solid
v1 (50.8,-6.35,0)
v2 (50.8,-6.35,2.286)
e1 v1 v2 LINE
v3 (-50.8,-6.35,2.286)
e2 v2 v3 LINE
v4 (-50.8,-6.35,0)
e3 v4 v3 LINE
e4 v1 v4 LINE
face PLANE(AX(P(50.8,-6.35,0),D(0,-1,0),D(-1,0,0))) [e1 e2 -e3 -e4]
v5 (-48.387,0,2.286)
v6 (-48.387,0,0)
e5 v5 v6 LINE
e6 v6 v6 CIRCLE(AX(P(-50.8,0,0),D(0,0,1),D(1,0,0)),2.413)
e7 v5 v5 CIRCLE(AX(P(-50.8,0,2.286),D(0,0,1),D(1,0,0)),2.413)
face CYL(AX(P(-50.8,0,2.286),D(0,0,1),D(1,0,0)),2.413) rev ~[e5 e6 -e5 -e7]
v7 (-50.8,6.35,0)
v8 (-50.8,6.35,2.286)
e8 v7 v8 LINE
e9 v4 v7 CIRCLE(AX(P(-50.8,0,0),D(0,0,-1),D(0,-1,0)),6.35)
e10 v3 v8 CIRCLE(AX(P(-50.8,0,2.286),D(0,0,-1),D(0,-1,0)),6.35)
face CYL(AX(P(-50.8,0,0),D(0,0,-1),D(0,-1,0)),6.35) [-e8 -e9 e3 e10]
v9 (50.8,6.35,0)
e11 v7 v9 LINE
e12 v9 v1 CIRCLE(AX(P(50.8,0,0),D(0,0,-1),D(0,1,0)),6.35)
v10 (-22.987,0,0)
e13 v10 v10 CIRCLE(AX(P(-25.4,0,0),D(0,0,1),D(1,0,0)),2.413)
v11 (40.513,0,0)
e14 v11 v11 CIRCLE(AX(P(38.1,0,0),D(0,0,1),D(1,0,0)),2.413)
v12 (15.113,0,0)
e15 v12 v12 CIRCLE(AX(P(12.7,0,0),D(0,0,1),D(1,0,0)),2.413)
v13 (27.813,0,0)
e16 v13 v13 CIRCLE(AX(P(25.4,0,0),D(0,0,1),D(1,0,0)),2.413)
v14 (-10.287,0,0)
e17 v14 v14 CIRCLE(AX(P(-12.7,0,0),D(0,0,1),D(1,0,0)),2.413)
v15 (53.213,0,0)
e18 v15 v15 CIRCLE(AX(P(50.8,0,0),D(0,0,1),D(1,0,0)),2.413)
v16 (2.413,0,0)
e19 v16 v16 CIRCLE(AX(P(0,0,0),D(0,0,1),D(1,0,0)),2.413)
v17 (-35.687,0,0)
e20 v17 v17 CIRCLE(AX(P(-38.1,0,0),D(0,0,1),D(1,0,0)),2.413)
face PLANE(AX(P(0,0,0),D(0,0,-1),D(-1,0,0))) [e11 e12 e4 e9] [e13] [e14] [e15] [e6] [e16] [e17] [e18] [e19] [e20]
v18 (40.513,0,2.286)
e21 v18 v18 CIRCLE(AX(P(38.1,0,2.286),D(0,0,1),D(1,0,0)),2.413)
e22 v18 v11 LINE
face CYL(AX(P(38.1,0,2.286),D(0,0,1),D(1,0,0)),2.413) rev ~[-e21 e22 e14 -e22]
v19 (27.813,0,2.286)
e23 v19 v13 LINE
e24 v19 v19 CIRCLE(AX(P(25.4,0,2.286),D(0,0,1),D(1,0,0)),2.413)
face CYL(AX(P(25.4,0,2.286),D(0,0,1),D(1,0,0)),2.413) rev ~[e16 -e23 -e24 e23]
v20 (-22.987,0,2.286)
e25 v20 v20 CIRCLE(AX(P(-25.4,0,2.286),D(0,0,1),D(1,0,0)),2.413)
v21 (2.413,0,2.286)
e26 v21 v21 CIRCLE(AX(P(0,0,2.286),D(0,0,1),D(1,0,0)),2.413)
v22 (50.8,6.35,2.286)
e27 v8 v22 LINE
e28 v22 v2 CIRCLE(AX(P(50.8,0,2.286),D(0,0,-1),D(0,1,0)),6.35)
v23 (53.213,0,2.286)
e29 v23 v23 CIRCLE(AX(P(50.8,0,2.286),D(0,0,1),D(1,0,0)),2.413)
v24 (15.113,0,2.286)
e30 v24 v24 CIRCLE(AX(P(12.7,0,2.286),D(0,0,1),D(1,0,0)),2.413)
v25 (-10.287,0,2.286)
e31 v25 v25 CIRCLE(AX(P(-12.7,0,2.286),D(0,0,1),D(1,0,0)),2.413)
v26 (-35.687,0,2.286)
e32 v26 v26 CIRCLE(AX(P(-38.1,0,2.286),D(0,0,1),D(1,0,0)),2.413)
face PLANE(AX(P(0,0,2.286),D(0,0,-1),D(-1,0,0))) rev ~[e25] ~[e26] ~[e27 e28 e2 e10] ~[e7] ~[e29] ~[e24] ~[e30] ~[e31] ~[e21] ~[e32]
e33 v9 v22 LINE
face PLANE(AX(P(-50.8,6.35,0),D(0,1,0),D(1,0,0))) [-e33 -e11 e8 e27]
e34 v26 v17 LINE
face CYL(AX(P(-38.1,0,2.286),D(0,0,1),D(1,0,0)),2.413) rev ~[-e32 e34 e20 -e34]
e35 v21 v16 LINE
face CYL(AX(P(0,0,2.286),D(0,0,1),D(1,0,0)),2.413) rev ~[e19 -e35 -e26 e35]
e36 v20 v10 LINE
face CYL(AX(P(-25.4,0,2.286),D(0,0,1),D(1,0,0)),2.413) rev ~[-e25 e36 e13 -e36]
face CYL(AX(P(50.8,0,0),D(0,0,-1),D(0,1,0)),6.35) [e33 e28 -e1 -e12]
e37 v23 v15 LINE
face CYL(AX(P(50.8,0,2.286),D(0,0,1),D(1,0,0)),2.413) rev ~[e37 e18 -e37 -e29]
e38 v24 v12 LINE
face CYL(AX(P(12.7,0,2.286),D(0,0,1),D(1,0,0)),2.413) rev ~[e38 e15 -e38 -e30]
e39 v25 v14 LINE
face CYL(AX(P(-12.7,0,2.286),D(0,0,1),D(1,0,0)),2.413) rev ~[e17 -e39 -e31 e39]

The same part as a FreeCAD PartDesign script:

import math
import FreeCAD as App
import Part
import Sketcher
Q = App.Units.Quantity

doc = App.newDocument("Part")
body = doc.addObject("PartDesign::Body", "Body")

# Sketch on XY plane
sketch1 = body.newObject("Sketcher::SketchObject", "Sketch")
sketch1.AttachmentSupport = (doc.getObject("XY_Plane"), [""])
sketch1.MapMode = "FlatFace"
sketch1.addGeometry(Part.LineSegment(App.Vector(51, 6, 0), App.Vector(-51, 6, 0)), False)
sketch1.addGeometry(Part.ArcOfCircle(Part.Circle(App.Vector(-51, 0, 0), App.Vector(0, 0, 1), 6), math.radians(90), math.radians(270)), False)
sketch1.addGeometry(Part.LineSegment(App.Vector(-51, -6, 0), App.Vector(51, -6, 0)), False)
sketch1.addGeometry(Part.ArcOfCircle(Part.Circle(App.Vector(51, 0, 0), App.Vector(0, 0, 1), 6), math.radians(-90), math.radians(90)), False)
sketch1.addConstraint(Sketcher.Constraint("Tangent", 0, 2, 1, 1))
sketch1.addConstraint(Sketcher.Constraint("Tangent", 1, 2, 2, 1))
sketch1.addConstraint(Sketcher.Constraint("Tangent", 2, 2, 3, 1))
sketch1.addConstraint(Sketcher.Constraint("Tangent", 3, 2, 0, 1))
sketch1.addConstraint(Sketcher.Constraint("Horizontal", 0))
sketch1.addConstraint(Sketcher.Constraint("Horizontal", 2))
sketch1.addConstraint(Sketcher.Constraint("Symmetric", 1, 3, 3, 3, -1, 1))
sketch1.addConstraint(Sketcher.Constraint("DistanceX", 0, 2, 0, 1, Q("4 in")))
sketch1.addConstraint(Sketcher.Constraint("Radius", 1, Q("0.25 in")))
pad1 = body.newObject("PartDesign::Pad", "Pad")
pad1.Profile = sketch1
pad1.Length = Q("0.09 in")

# Sketch on XY plane
sketch2 = body.newObject("Sketcher::SketchObject", "Sketch001")
sketch2.AttachmentSupport = (doc.getObject("XY_Plane"), [""])
sketch2.MapMode = "FlatFace"
sketch2.AttachmentOffset = App.Placement(App.Vector(0, 0, 0.09 * 25.4), App.Rotation())
sketch2.addGeometry(Part.Circle(App.Vector(-50.8, 0, 0), App.Vector(0, 0, 1), 2.4), False)
sketch2.addConstraint(Sketcher.Constraint("PointOnObject", 0, 3, -1))
sketch2.addConstraint(Sketcher.Constraint("Diameter", 0, Q("0.19 in")))
sketch2.addConstraint(Sketcher.Constraint("DistanceX", 0, 3, -1, 1, Q("2 in")))
pocket1 = body.newObject("PartDesign::Pocket", "Pocket")
pocket1.Profile = sketch2
pocket1.Type = "ThroughAll"
doc.recompute()

linearpattern = body.newObject("PartDesign::LinearPattern", "LinearPattern")
linearpattern.Originals = [pocket1]
linearpattern.Direction = (doc.getObject("X_Axis"), [""])
linearpattern.Mode = "offset"
linearpattern.Offset = Q("0.5 in")
linearpattern.Occurrences = 9
body.Tip = linearpattern

doc.recompute()
